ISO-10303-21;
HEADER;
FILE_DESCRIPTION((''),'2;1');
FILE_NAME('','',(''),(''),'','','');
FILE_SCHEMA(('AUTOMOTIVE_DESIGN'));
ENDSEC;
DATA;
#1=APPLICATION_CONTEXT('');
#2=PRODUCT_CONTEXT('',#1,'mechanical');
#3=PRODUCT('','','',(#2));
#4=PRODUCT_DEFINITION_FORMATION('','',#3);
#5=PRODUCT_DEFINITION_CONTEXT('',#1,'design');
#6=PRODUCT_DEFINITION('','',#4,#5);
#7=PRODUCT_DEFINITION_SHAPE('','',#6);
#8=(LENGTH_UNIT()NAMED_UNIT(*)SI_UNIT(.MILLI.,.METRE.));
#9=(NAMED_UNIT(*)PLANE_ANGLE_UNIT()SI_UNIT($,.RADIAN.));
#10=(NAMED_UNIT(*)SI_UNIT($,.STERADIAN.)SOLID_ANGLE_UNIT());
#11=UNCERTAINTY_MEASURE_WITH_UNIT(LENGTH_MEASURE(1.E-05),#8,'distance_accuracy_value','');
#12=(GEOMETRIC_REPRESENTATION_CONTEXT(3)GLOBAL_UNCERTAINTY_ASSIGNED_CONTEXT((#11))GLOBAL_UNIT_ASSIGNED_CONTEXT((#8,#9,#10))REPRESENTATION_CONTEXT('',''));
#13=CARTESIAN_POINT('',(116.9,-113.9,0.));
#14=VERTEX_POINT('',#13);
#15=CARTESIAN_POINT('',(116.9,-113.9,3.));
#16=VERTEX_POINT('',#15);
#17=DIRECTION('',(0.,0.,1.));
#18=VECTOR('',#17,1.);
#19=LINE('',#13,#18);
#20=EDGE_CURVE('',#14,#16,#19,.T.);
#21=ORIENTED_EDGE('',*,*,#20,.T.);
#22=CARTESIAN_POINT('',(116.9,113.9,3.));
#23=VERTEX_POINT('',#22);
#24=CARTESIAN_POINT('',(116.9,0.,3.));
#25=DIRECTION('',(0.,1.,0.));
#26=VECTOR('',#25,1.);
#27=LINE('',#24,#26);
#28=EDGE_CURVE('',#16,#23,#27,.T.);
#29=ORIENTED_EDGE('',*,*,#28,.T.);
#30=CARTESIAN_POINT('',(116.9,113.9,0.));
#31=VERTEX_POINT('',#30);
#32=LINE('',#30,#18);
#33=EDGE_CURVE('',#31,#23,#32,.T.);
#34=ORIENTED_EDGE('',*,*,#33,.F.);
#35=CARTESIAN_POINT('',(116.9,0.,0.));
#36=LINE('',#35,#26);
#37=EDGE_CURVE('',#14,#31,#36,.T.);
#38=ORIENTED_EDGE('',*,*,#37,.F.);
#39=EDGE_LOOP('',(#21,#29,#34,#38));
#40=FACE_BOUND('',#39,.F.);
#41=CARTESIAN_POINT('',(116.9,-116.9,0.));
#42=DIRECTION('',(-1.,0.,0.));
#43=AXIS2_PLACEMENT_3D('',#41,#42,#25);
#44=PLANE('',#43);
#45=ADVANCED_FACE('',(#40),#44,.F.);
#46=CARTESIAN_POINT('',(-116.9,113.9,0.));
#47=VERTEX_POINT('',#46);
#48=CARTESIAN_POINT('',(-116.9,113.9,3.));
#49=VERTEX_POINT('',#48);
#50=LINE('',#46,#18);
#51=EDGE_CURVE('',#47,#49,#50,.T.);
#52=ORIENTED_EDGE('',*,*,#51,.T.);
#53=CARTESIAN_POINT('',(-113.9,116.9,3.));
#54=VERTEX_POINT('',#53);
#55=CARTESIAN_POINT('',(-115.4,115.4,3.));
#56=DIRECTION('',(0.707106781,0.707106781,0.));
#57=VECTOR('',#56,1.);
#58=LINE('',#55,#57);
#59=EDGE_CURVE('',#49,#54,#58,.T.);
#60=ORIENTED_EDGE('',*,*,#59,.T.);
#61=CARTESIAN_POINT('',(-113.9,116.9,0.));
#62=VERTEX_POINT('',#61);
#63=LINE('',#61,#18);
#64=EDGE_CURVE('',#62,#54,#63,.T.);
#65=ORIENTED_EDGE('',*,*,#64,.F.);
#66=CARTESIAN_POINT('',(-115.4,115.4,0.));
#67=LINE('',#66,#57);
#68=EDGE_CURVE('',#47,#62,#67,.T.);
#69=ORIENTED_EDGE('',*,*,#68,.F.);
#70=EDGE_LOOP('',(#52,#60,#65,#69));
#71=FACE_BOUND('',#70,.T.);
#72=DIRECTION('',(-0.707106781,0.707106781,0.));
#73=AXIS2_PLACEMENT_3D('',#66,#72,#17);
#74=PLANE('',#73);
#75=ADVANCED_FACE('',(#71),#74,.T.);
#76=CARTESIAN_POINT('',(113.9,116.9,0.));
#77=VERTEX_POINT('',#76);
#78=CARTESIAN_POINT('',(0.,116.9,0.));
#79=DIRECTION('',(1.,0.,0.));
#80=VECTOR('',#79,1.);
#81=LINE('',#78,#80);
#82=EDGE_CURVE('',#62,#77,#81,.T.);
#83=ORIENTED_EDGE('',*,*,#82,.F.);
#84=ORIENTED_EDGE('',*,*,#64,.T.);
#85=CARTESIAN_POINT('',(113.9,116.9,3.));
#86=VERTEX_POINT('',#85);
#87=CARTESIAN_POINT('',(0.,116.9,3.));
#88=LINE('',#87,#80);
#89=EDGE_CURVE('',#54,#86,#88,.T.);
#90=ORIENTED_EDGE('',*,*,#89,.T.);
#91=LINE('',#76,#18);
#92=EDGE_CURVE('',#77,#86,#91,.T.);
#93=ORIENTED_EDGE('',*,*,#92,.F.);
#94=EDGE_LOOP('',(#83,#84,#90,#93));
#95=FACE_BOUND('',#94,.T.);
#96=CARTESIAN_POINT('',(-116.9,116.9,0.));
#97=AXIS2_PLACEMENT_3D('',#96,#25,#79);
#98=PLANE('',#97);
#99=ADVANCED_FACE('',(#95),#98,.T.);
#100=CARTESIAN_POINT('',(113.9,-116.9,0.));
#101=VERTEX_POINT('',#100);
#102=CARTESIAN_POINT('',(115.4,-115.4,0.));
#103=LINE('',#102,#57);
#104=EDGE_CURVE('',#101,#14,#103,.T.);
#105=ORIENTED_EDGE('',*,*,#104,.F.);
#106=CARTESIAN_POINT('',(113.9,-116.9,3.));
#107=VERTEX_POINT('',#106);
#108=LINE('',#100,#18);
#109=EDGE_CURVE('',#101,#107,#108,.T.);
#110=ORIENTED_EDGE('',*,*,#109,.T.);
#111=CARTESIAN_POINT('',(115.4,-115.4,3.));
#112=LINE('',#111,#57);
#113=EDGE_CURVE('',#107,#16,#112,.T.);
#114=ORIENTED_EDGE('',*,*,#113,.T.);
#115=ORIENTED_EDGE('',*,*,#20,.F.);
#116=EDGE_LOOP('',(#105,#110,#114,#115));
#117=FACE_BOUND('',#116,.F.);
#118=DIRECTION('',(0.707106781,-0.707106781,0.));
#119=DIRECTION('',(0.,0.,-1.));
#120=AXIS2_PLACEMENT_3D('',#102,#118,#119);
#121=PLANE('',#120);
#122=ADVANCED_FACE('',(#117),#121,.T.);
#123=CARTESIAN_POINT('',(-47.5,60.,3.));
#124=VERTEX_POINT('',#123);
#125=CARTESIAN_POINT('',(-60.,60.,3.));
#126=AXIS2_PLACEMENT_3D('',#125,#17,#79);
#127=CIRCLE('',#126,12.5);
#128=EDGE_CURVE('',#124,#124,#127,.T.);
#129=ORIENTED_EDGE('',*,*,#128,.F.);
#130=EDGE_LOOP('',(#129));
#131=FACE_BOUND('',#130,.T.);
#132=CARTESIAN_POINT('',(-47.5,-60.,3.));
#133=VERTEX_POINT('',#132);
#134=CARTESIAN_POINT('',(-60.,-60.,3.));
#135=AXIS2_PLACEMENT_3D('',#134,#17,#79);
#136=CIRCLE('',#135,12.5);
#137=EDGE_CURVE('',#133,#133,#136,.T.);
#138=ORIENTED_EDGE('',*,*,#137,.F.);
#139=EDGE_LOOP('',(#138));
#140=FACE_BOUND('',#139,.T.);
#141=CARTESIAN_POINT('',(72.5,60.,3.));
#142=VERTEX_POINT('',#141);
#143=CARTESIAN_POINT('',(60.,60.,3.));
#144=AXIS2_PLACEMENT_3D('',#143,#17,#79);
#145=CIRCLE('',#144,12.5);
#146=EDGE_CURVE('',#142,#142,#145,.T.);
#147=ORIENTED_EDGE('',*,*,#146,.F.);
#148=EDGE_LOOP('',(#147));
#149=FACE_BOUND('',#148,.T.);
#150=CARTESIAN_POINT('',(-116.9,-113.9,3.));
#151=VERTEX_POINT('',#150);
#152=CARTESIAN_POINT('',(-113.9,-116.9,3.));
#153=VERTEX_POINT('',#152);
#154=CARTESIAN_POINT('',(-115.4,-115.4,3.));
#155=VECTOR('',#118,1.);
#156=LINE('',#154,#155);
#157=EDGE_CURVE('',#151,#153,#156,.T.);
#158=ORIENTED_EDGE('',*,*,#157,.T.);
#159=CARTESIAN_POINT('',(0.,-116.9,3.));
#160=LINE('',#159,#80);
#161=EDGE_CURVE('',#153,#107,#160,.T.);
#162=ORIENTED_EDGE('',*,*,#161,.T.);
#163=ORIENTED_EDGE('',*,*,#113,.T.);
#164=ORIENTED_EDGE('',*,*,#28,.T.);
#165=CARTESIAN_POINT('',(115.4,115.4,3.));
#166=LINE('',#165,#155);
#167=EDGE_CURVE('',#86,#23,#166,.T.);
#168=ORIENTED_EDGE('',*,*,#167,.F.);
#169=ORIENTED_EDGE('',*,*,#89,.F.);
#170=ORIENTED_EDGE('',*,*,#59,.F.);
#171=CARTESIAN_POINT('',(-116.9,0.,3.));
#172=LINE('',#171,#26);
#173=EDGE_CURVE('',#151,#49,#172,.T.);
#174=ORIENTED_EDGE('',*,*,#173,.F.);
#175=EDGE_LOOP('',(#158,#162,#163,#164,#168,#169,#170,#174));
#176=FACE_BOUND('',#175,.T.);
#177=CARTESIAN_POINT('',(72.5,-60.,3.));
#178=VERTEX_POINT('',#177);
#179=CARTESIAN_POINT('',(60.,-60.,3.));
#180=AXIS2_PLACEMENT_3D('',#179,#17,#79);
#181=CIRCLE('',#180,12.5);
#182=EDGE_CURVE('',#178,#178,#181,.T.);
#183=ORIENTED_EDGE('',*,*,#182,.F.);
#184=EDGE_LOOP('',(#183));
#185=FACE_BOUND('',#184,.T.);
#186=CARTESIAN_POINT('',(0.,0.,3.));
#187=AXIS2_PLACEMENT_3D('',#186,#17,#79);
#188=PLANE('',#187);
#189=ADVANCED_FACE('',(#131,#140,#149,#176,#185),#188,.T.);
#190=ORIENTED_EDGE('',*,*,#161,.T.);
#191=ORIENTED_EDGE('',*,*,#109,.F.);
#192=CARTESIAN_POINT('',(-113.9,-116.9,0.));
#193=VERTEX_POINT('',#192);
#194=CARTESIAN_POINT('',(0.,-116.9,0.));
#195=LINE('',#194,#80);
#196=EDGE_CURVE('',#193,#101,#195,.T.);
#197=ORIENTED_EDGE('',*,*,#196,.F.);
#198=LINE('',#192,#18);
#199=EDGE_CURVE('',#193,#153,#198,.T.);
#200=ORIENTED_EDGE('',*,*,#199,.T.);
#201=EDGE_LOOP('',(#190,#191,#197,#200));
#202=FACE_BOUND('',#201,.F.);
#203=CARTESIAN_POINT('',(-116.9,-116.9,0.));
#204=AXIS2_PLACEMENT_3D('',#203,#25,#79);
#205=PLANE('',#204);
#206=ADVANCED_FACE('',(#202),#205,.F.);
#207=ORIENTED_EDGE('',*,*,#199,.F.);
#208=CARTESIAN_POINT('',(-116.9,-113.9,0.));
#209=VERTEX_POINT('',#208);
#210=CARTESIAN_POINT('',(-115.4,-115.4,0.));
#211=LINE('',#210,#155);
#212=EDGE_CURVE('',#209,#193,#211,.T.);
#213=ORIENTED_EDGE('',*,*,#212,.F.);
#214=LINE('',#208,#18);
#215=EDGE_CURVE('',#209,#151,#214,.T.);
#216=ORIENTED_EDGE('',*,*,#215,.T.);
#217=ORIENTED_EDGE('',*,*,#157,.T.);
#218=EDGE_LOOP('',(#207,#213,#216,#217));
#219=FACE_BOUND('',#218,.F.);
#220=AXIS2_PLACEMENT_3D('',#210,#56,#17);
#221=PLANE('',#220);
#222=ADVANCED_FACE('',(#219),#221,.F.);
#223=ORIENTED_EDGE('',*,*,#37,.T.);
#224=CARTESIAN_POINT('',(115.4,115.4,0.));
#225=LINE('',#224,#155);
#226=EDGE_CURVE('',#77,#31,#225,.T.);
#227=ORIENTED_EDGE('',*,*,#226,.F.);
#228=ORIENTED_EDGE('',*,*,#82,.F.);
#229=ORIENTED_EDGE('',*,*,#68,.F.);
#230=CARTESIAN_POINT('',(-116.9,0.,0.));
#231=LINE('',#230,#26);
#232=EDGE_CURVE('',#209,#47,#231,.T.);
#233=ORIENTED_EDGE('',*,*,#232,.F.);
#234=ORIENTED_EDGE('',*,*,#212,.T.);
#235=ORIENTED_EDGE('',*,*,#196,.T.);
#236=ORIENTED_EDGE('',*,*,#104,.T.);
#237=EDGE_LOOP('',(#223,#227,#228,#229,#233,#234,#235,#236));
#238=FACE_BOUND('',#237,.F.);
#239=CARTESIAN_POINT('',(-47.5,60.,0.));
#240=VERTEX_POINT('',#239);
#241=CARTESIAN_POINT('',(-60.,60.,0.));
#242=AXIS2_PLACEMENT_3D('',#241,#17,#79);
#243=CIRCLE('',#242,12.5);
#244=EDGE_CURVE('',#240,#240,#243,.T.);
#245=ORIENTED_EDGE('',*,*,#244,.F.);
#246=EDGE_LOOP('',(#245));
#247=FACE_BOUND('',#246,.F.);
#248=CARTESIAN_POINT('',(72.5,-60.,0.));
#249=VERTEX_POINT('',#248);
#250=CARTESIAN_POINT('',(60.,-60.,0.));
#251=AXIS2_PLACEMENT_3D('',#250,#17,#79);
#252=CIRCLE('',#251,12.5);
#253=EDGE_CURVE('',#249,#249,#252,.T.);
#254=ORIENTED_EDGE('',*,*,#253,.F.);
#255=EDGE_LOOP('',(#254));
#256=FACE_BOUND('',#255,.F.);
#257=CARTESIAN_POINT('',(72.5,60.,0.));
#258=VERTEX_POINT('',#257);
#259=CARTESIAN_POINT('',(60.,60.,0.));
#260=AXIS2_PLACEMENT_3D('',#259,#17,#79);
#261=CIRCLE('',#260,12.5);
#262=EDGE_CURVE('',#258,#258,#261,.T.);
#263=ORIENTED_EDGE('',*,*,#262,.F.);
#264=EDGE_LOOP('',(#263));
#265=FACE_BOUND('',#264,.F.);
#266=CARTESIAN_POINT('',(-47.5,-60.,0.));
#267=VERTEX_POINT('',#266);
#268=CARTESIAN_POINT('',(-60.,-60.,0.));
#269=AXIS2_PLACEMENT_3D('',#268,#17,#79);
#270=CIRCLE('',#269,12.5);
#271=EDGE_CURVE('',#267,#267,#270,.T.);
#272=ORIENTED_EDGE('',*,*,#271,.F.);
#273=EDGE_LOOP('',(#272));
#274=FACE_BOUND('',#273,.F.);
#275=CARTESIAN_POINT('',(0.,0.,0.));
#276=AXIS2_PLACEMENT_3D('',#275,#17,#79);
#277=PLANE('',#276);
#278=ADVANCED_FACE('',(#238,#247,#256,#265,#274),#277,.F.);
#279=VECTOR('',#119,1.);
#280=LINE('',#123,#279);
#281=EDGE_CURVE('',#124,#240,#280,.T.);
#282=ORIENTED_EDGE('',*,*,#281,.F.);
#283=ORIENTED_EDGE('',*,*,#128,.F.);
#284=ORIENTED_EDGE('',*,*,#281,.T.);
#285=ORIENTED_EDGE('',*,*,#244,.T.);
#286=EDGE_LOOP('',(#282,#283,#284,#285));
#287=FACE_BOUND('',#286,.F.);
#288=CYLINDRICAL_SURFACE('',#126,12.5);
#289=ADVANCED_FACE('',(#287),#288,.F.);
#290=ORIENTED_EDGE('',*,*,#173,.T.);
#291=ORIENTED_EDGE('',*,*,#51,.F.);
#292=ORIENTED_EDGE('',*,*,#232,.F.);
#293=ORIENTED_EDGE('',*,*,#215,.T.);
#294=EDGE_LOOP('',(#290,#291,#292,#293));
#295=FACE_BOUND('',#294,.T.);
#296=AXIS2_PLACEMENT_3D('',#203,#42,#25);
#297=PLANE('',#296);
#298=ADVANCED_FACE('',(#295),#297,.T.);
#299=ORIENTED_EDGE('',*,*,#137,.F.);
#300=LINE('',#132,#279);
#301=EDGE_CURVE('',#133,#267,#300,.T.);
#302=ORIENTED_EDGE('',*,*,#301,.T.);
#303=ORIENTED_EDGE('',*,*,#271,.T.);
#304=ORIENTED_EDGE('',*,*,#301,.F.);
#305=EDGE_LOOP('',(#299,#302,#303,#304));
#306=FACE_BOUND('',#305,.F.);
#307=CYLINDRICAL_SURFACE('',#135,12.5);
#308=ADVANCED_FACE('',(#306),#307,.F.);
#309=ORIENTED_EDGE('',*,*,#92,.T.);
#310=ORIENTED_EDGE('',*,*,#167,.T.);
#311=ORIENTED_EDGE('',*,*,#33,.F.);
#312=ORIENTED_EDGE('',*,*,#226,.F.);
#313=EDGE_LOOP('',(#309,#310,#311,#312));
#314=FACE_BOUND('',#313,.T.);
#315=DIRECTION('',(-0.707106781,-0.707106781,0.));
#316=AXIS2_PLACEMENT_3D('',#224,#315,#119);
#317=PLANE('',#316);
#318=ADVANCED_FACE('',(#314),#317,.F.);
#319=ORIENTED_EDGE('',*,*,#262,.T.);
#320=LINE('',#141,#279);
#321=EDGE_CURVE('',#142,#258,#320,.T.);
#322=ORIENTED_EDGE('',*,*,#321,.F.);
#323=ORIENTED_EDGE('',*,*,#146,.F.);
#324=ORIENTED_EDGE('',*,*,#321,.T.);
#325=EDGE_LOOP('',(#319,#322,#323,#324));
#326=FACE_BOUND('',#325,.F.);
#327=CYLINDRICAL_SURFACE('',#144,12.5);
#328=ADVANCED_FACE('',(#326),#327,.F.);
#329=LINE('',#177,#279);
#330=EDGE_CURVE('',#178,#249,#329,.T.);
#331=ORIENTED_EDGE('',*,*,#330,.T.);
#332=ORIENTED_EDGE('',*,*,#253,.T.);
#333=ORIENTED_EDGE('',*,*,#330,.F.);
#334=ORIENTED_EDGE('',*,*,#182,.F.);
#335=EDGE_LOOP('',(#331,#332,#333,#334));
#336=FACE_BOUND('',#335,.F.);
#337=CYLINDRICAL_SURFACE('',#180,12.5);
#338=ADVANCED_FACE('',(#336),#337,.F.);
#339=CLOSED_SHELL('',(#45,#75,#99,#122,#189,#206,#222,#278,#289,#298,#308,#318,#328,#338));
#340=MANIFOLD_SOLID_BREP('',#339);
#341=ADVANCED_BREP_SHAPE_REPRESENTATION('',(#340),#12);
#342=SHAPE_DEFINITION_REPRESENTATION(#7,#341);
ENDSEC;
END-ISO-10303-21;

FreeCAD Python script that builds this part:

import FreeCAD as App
import Part
import Sketcher
from FreeCAD import Vector


def edges_at(feature, points):
    """Names of the edges that pass closest to the given points."""
    edges = feature.Shape.Edges
    near = lambda p: min(range(len(edges)), key=lambda i: edges[i].distToShape(Part.Vertex(*p))[0])
    return sorted({f"Edge{near(p) + 1}" for p in points})


def add_polygon(sketch, points):
    """Adds a closed chain of lines whose ends are joined by coincident constraints."""
    first, n = sketch.GeometryCount, len(points)
    for a, b in zip(points, points[1:] + points[:1]):
        sketch.addGeometry(Part.LineSegment(App.Vector(*a, 0), App.Vector(*b, 0)), False)
    for i in range(n):
        sketch.addConstraint(Sketcher.Constraint("Coincident", first + i, 2, first + (i + 1) % n, 1))

doc = App.newDocument("Part")
body = doc.addObject("PartDesign::Body", "Body")

# Sketch on XY plane
sketch1 = body.newObject("Sketcher::SketchObject", "Sketch")
sketch1.AttachmentSupport = (doc.getObject("XY_Plane"), [""])
sketch1.MapMode = "FlatFace"
add_polygon(sketch1, [(-117, 117), (-117, -117), (117, -117), (117, 117)])  # lines 0-3
sketch1.addConstraint([
    Sketcher.Constraint("Vertical", 0),
    Sketcher.Constraint("Horizontal", 1),
    Sketcher.Constraint("Vertical", 2),
    Sketcher.Constraint("Horizontal", 3),
    Sketcher.Constraint("Symmetric", 0, 2, 2, 2, -1, 1),
    Sketcher.Constraint("Equal", 3, 0),
    Sketcher.Constraint("DistanceX", 1, 1, 1, 2, 233.8),
])
pad1 = body.newObject("PartDesign::Pad", "Pad")
pad1.Profile = sketch1
pad1.Length = 3

# Sketch on XY plane
sketch2 = body.newObject("Sketcher::SketchObject", "Sketch001")
sketch2.AttachmentSupport = (doc.getObject("XY_Plane"), [""])
sketch2.MapMode = "FlatFace"
sketch2.AttachmentOffset = App.Placement(Vector(0, 0, 3), App.Rotation())
sketch2.addGeometry([
    Part.Circle(Vector(-60, 60, 0), Vector(0, 0, 1), 12),
    Part.Circle(Vector(-60, -60, 0), Vector(0, 0, 1), 12),
    Part.Circle(Vector(60, -60, 0), Vector(0, 0, 1), 12),
    Part.Circle(Vector(60, 60, 0), Vector(0, 0, 1), 12),
], False)
sketch2.addConstraint([
    Sketcher.Constraint("Equal", 0, 1),
    Sketcher.Constraint("Equal", 1, 2),
    Sketcher.Constraint("Equal", 2, 3),
    Sketcher.Constraint("Symmetric", 0, 3, 2, 3, -1, 1),
    Sketcher.Constraint("Symmetric", 1, 3, 3, 3, -1, 1),
    Sketcher.Constraint("Symmetric", 1, 3, 2, 3, -2),
    Sketcher.Constraint("Diameter", 0, 25.0),
    Sketcher.Constraint("DistanceX", 0, 3, -1, 1, 60.0),
    Sketcher.Constraint("DistanceY", -1, 1, 0, 3, 60.0),
])
pocket1 = body.newObject("PartDesign::Pocket", "Pocket")
pocket1.Profile = sketch2
pocket1.Type = "ThroughAll"
doc.recompute()

chamfer = body.newObject("PartDesign::Chamfer", "Chamfer")
chamfer.Base = (pocket1, edges_at(pocket1, [
    (116.9, 116.9, 1.5),
    (-116.9, 116.9, 1.5),
    (116.9, -116.9, 1.5),
    (-116.9, -116.9, 1.5),
]))
chamfer.Size = 3

doc.recompute()
